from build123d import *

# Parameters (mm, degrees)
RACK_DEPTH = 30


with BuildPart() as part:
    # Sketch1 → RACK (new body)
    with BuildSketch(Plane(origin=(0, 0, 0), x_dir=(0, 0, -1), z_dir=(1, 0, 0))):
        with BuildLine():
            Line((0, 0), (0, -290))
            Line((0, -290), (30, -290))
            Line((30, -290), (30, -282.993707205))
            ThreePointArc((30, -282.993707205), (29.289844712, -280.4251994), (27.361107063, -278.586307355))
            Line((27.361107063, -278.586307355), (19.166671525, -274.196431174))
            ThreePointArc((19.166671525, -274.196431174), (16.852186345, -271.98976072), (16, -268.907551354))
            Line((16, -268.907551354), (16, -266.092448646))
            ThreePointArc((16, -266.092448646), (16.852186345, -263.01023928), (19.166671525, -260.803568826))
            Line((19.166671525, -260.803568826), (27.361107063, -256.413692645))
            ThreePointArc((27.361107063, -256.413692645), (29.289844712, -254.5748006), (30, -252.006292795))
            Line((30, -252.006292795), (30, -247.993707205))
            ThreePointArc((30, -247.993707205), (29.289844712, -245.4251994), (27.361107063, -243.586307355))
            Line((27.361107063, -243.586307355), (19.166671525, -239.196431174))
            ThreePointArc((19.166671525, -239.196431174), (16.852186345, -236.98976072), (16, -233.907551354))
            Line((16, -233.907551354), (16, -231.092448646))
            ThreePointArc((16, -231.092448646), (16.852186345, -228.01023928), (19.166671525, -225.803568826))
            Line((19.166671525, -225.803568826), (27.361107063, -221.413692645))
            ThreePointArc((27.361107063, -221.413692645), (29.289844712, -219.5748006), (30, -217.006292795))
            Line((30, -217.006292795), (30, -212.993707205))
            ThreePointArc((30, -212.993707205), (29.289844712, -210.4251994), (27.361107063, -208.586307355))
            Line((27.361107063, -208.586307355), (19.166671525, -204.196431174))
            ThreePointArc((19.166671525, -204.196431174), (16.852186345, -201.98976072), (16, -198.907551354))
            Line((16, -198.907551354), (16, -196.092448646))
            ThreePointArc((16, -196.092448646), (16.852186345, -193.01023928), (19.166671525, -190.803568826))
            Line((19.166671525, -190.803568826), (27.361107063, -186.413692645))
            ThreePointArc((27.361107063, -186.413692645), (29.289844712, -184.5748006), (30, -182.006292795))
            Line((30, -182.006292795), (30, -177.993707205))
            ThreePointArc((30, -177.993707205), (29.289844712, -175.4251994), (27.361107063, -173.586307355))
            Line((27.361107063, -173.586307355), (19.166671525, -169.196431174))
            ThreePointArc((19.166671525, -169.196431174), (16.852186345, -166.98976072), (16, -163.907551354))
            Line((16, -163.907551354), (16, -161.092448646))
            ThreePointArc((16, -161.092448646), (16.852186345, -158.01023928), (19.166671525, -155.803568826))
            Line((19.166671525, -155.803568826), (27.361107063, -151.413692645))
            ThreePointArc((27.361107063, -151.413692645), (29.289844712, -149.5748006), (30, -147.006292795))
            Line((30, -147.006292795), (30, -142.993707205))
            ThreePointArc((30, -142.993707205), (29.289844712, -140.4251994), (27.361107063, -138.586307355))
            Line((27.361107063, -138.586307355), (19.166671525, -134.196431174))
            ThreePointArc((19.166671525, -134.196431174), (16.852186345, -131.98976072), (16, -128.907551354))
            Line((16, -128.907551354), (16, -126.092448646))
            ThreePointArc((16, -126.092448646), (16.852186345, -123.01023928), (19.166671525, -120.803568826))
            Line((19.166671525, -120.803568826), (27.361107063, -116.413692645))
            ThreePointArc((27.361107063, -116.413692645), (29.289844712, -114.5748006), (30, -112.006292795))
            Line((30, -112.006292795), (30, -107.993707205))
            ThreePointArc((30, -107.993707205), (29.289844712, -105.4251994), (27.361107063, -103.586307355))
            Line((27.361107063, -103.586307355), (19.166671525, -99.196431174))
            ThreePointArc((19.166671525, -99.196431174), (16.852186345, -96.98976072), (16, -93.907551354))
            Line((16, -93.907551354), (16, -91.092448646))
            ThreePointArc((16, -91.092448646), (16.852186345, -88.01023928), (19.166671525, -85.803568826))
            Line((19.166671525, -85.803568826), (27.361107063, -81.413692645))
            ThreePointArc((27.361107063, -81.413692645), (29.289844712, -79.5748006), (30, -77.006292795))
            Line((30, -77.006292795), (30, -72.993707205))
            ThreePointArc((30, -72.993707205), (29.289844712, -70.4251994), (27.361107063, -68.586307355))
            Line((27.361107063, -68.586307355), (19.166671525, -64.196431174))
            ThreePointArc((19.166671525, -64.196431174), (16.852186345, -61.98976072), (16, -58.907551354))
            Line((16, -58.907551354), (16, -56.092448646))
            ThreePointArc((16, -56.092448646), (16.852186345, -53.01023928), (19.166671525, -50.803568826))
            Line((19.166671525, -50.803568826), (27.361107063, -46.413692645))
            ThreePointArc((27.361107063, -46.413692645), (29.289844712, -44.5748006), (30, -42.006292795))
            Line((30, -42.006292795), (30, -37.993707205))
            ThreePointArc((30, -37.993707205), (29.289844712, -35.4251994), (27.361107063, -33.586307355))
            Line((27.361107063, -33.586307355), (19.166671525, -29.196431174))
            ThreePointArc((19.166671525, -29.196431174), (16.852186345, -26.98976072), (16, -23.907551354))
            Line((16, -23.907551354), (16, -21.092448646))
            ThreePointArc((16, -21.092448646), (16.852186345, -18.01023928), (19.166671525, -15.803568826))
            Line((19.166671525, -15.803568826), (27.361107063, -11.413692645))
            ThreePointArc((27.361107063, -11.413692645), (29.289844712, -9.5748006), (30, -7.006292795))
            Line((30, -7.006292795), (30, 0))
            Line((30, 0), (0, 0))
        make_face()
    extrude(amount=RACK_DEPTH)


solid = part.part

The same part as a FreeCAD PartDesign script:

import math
import FreeCAD as App
import Part
import Sketcher
Q = App.Units.Quantity

doc = App.newDocument("Part")
params = doc.addObject("Spreadsheet::Sheet", "Params")
for row, (alias, value) in enumerate([
    ("sketch1_radius", "5 mm"),
    ("sketch1_radius2", "6 mm"),
    ("sketch1_width", "290 mm"),
    ("sketch1_height", "30 mm"),
    ("pad1_length", "30 mm"),
], start=1):
    params.set(f"A{row}", alias)
    params.set(f"B{row}", "=" + value)
    params.setAlias(f"B{row}", alias)

body = doc.addObject("PartDesign::Body", "Body")

# Sketch on YZ plane
sketch1 = body.newObject("Sketcher::SketchObject", "Sketch")
sketch1.AttachmentSupport = (doc.getObject("YZ_Plane"), [""])
sketch1.MapMode = "FlatFace"
sketch1.addGeometry([
    Part.LineSegment(App.Vector(0, 0, 0), App.Vector(-290, 0, 0)),  # 0
    Part.LineSegment(App.Vector(-290, 0, 0), App.Vector(-290, -30, 0)),  # 1
    Part.LineSegment(App.Vector(-290, -30, 0), App.Vector(-282.993707, -30, 0)),  # 2
    Part.ArcOfCircle(Part.Circle(App.Vector(-282.993707, -25, 0), App.Vector(0, 0, 1), 5), math.radians(-90), math.radians(-28.17859)),  # 3
    Part.LineSegment(App.Vector(-278.586307, -27.361107, 0), App.Vector(-274.196431, -19.166672, 0)),  # 4
    Part.ArcOfCircle(Part.Circle(App.Vector(-268.907551, -22, 0), App.Vector(0, 0, 1), 6), math.radians(90), math.radians(151.82141)),  # 5
    Part.LineSegment(App.Vector(-268.907551, -16, 0), App.Vector(-266.092449, -16, 0)),  # 6
    Part.ArcOfCircle(Part.Circle(App.Vector(-266.092449, -22, 0), App.Vector(0, 0, 1), 6), math.radians(28.17859), math.radians(90)),  # 7
    Part.LineSegment(App.Vector(-260.803569, -19.166672, 0), App.Vector(-256.413693, -27.361107, 0)),  # 8
    Part.ArcOfCircle(Part.Circle(App.Vector(-252.006293, -25, 0), App.Vector(0, 0, 1), 5), math.radians(-151.82141), math.radians(-90)),  # 9
    Part.LineSegment(App.Vector(-252.006293, -30, 0), App.Vector(-247.993707, -30, 0)),  # 10
    Part.ArcOfCircle(Part.Circle(App.Vector(-247.993707, -25, 0), App.Vector(0, 0, 1), 5), math.radians(-90), math.radians(-28.17859)),  # 11
    Part.LineSegment(App.Vector(-243.586307, -27.361107, 0), App.Vector(-239.196431, -19.166672, 0)),  # 12
    Part.ArcOfCircle(Part.Circle(App.Vector(-233.907551, -22, 0), App.Vector(0, 0, 1), 6), math.radians(90), math.radians(151.82141)),  # 13
    Part.LineSegment(App.Vector(-233.907551, -16, 0), App.Vector(-231.092449, -16, 0)),  # 14
    Part.ArcOfCircle(Part.Circle(App.Vector(-231.092449, -22, 0), App.Vector(0, 0, 1), 6), math.radians(28.17859), math.radians(90)),  # 15
    Part.LineSegment(App.Vector(-225.803569, -19.166672, 0), App.Vector(-221.413693, -27.361107, 0)),  # 16
    Part.ArcOfCircle(Part.Circle(App.Vector(-217.006293, -25, 0), App.Vector(0, 0, 1), 5), math.radians(-151.82141), math.radians(-90)),  # 17
    Part.LineSegment(App.Vector(-217.006293, -30, 0), App.Vector(-212.993707, -30, 0)),  # 18
    Part.ArcOfCircle(Part.Circle(App.Vector(-212.993707, -25, 0), App.Vector(0, 0, 1), 5), math.radians(-90), math.radians(-28.17859)),  # 19
    Part.LineSegment(App.Vector(-208.586307, -27.361107, 0), App.Vector(-204.196431, -19.166672, 0)),  # 20
    Part.ArcOfCircle(Part.Circle(App.Vector(-198.907551, -22, 0), App.Vector(0, 0, 1), 6), math.radians(90), math.radians(151.82141)),  # 21
    Part.LineSegment(App.Vector(-198.907551, -16, 0), App.Vector(-196.092449, -16, 0)),  # 22
    Part.ArcOfCircle(Part.Circle(App.Vector(-196.092449, -22, 0), App.Vector(0, 0, 1), 6), math.radians(28.17859), math.radians(90)),  # 23
    Part.LineSegment(App.Vector(-190.803569, -19.166672, 0), App.Vector(-186.413693, -27.361107, 0)),  # 24
    Part.ArcOfCircle(Part.Circle(App.Vector(-182.006293, -25, 0), App.Vector(0, 0, 1), 5), math.radians(-151.82141), math.radians(-90)),  # 25
    Part.LineSegment(App.Vector(-182.006293, -30, 0), App.Vector(-177.993707, -30, 0)),  # 26
    Part.ArcOfCircle(Part.Circle(App.Vector(-177.993707, -25, 0), App.Vector(0, 0, 1), 5), math.radians(-90), math.radians(-28.17859)),  # 27
    Part.LineSegment(App.Vector(-173.586307, -27.361107, 0), App.Vector(-169.196431, -19.166672, 0)),  # 28
    Part.ArcOfCircle(Part.Circle(App.Vector(-163.907551, -22, 0), App.Vector(0, 0, 1), 6), math.radians(90), math.radians(151.82141)),  # 29
    Part.LineSegment(App.Vector(-163.907551, -16, 0), App.Vector(-161.092449, -16, 0)),  # 30
    Part.ArcOfCircle(Part.Circle(App.Vector(-161.092449, -22, 0), App.Vector(0, 0, 1), 6), math.radians(28.17859), math.radians(90)),  # 31
    Part.LineSegment(App.Vector(-155.803569, -19.166672, 0), App.Vector(-151.413693, -27.361107, 0)),  # 32
    Part.ArcOfCircle(Part.Circle(App.Vector(-147.006293, -25, 0), App.Vector(0, 0, 1), 5), math.radians(-151.82141), math.radians(-90)),  # 33
    Part.LineSegment(App.Vector(-147.006293, -30, 0), App.Vector(-142.993707, -30, 0)),  # 34
    Part.ArcOfCircle(Part.Circle(App.Vector(-142.993707, -25, 0), App.Vector(0, 0, 1), 5), math.radians(-90), math.radians(-28.17859)),  # 35
    Part.LineSegment(App.Vector(-138.586307, -27.361107, 0), App.Vector(-134.196431, -19.166672, 0)),  # 36
    Part.ArcOfCircle(Part.Circle(App.Vector(-128.907551, -22, 0), App.Vector(0, 0, 1), 6), math.radians(90), math.radians(151.82141)),  # 37
    Part.LineSegment(App.Vector(-128.907551, -16, 0), App.Vector(-126.092449, -16, 0)),  # 38
    Part.ArcOfCircle(Part.Circle(App.Vector(-126.092449, -22, 0), App.Vector(0, 0, 1), 6), math.radians(28.17859), math.radians(90)),  # 39
    Part.LineSegment(App.Vector(-120.803569, -19.166672, 0), App.Vector(-116.413693, -27.361107, 0)),  # 40
    Part.ArcOfCircle(Part.Circle(App.Vector(-112.006293, -25, 0), App.Vector(0, 0, 1), 5), math.radians(-151.82141), math.radians(-90)),  # 41
    Part.LineSegment(App.Vector(-112.006293, -30, 0), App.Vector(-107.993707, -30, 0)),  # 42
    Part.ArcOfCircle(Part.Circle(App.Vector(-107.993707, -25, 0), App.Vector(0, 0, 1), 5), math.radians(-90), math.radians(-28.17859)),  # 43
    Part.LineSegment(App.Vector(-103.586307, -27.361107, 0), App.Vector(-99.196431, -19.166672, 0)),  # 44
    Part.ArcOfCircle(Part.Circle(App.Vector(-93.907551, -22, 0), App.Vector(0, 0, 1), 6), math.radians(90), math.radians(151.82141)),  # 45
    Part.LineSegment(App.Vector(-93.907551, -16, 0), App.Vector(-91.092449, -16, 0)),  # 46
    Part.ArcOfCircle(Part.Circle(App.Vector(-91.092449, -22, 0), App.Vector(0, 0, 1), 6), math.radians(28.17859), math.radians(90)),  # 47
    Part.LineSegment(App.Vector(-85.803569, -19.166672, 0), App.Vector(-81.413693, -27.361107, 0)),  # 48
    Part.ArcOfCircle(Part.Circle(App.Vector(-77.006293, -25, 0), App.Vector(0, 0, 1), 5), math.radians(-151.82141), math.radians(-90)),  # 49
    Part.LineSegment(App.Vector(-77.006293, -30, 0), App.Vector(-72.993707, -30, 0)),  # 50
    Part.ArcOfCircle(Part.Circle(App.Vector(-72.993707, -25, 0), App.Vector(0, 0, 1), 5), math.radians(-90), math.radians(-28.17859)),  # 51
    Part.LineSegment(App.Vector(-68.586307, -27.361107, 0), App.Vector(-64.196431, -19.166672, 0)),  # 52
    Part.ArcOfCircle(Part.Circle(App.Vector(-58.907551, -22, 0), App.Vector(0, 0, 1), 6), math.radians(90), math.radians(151.82141)),  # 53
    Part.LineSegment(App.Vector(-58.907551, -16, 0), App.Vector(-56.092449, -16, 0)),  # 54
    Part.ArcOfCircle(Part.Circle(App.Vector(-56.092449, -22, 0), App.Vector(0, 0, 1), 6), math.radians(28.17859), math.radians(90)),  # 55
    Part.LineSegment(App.Vector(-50.803569, -19.166672, 0), App.Vector(-46.413693, -27.361107, 0)),  # 56
    Part.ArcOfCircle(Part.Circle(App.Vector(-42.006293, -25, 0), App.Vector(0, 0, 1), 5), math.radians(-151.82141), math.radians(-90)),  # 57
    Part.LineSegment(App.Vector(-42.006293, -30, 0), App.Vector(-37.993707, -30, 0)),  # 58
    Part.ArcOfCircle(Part.Circle(App.Vector(-37.993707, -25, 0), App.Vector(0, 0, 1), 5), math.radians(-90), math.radians(-28.17859)),  # 59
    Part.LineSegment(App.Vector(-33.586307, -27.361107, 0), App.Vector(-29.196431, -19.166672, 0)),  # 60
    Part.ArcOfCircle(Part.Circle(App.Vector(-23.907551, -22, 0), App.Vector(0, 0, 1), 6), math.radians(90), math.radians(151.82141)),  # 61
    Part.LineSegment(App.Vector(-23.907551, -16, 0), App.Vector(-21.092449, -16, 0)),  # 62
    Part.ArcOfCircle(Part.Circle(App.Vector(-21.092449, -22, 0), App.Vector(0, 0, 1), 6), math.radians(28.17859), math.radians(90)),  # 63
    Part.LineSegment(App.Vector(-15.803569, -19.166672, 0), App.Vector(-11.413693, -27.361107, 0)),  # 64
    Part.ArcOfCircle(Part.Circle(App.Vector(-7.006293, -25, 0), App.Vector(0, 0, 1), 5), math.radians(-151.82141), math.radians(-90)),  # 65
    Part.LineSegment(App.Vector(-7.006293, -30, 0), App.Vector(0, -30, 0)),  # 66
    Part.LineSegment(App.Vector(0, -30, 0), App.Vector(0, 0, 0)),  # 67
], False)
sketch1.addConstraint([
    Sketcher.Constraint("Coincident", 0, 2, 1, 1),
    Sketcher.Constraint("Coincident", 1, 2, 2, 1),
    Sketcher.Constraint("Tangent", 2, 2, 3, 1),
    Sketcher.Constraint("Tangent", 3, 2, 4, 1),
    Sketcher.Constraint("Tangent", 4, 2, 5, 2),
    Sketcher.Constraint("Tangent", 5, 1, 6, 1),
    Sketcher.Constraint("Tangent", 6, 2, 7, 2),
    Sketcher.Constraint("Tangent", 7, 1, 8, 1),
    Sketcher.Constraint("Tangent", 8, 2, 9, 1),
    Sketcher.Constraint("Tangent", 9, 2, 10, 1),
    Sketcher.Constraint("Tangent", 10, 2, 11, 1),
    Sketcher.Constraint("Tangent", 11, 2, 12, 1),
    Sketcher.Constraint("Tangent", 12, 2, 13, 2),
    Sketcher.Constraint("Tangent", 13, 1, 14, 1),
    Sketcher.Constraint("Tangent", 14, 2, 15, 2),
    Sketcher.Constraint("Tangent", 15, 1, 16, 1),
    Sketcher.Constraint("Tangent", 16, 2, 17, 1),
    Sketcher.Constraint("Tangent", 17, 2, 18, 1),
    Sketcher.Constraint("Tangent", 18, 2, 19, 1),
    Sketcher.Constraint("Tangent", 19, 2, 20, 1),
    Sketcher.Constraint("Tangent", 20, 2, 21, 2),
    Sketcher.Constraint("Tangent", 21, 1, 22, 1),
    Sketcher.Constraint("Tangent", 22, 2, 23, 2),
    Sketcher.Constraint("Tangent", 23, 1, 24, 1),
    Sketcher.Constraint("Tangent", 24, 2, 25, 1),
    Sketcher.Constraint("Tangent", 25, 2, 26, 1),
    Sketcher.Constraint("Tangent", 26, 2, 27, 1),
    Sketcher.Constraint("Tangent", 27, 2, 28, 1),
    Sketcher.Constraint("Tangent", 28, 2, 29, 2),
    Sketcher.Constraint("Tangent", 29, 1, 30, 1),
    Sketcher.Constraint("Tangent", 30, 2, 31, 2),
    Sketcher.Constraint("Tangent", 31, 1, 32, 1),
    Sketcher.Constraint("Tangent", 32, 2, 33, 1),
    Sketcher.Constraint("Tangent", 33, 2, 34, 1),
    Sketcher.Constraint("Tangent", 34, 2, 35, 1),
    Sketcher.Constraint("Tangent", 35, 2, 36, 1),
    Sketcher.Constraint("Tangent", 36, 2, 37, 2),
    Sketcher.Constraint("Tangent", 37, 1, 38, 1),
    Sketcher.Constraint("Tangent", 38, 2, 39, 2),
    Sketcher.Constraint("Tangent", 39, 1, 40, 1),
    Sketcher.Constraint("Tangent", 40, 2, 41, 1),
    Sketcher.Constraint("Tangent", 41, 2, 42, 1),
    Sketcher.Constraint("Tangent", 42, 2, 43, 1),
    Sketcher.Constraint("Tangent", 43, 2, 44, 1),
    Sketcher.Constraint("Tangent", 44, 2, 45, 2),
    Sketcher.Constraint("Tangent", 45, 1, 46, 1),
    Sketcher.Constraint("Tangent", 46, 2, 47, 2),
    Sketcher.Constraint("Tangent", 47, 1, 48, 1),
    Sketcher.Constraint("Tangent", 48, 2, 49, 1),
    Sketcher.Constraint("Tangent", 49, 2, 50, 1),
    Sketcher.Constraint("Tangent", 50, 2, 51, 1),
    Sketcher.Constraint("Tangent", 51, 2, 52, 1),
    Sketcher.Constraint("Tangent", 52, 2, 53, 2),
    Sketcher.Constraint("Tangent", 53, 1, 54, 1),
    Sketcher.Constraint("Tangent", 54, 2, 55, 2),
    Sketcher.Constraint("Tangent", 55, 1, 56, 1),
    Sketcher.Constraint("Tangent", 56, 2, 57, 1),
    Sketcher.Constraint("Tangent", 57, 2, 58, 1),
    Sketcher.Constraint("Tangent", 58, 2, 59, 1),
    Sketcher.Constraint("Tangent", 59, 2, 60, 1),
    Sketcher.Constraint("Tangent", 60, 2, 61, 2),
    Sketcher.Constraint("Tangent", 61, 1, 62, 1),
    Sketcher.Constraint("Tangent", 62, 2, 63, 2),
    Sketcher.Constraint("Tangent", 63, 1, 64, 1),
    Sketcher.Constraint("Tangent", 64, 2, 65, 1),
    Sketcher.Constraint("Tangent", 65, 2, 66, 1),
    Sketcher.Constraint("Coincident", 66, 2, 67, 1),
    Sketcher.Constraint("Coincident", 67, 2, 0, 1),
    Sketcher.Constraint("Horizontal", 0),
    Sketcher.Constraint("Vertical", 1),
    Sketcher.Constraint("Horizontal", 2),
    Sketcher.Constraint("Horizontal", 6),
    Sketcher.Constraint("Horizontal", 10),
    Sketcher.Constraint("Horizontal", 14),
    Sketcher.Constraint("Horizontal", 18),
    Sketcher.Constraint("Horizontal", 22),
    Sketcher.Constraint("Horizontal", 26),
    Sketcher.Constraint("Horizontal", 30),
    Sketcher.Constraint("Horizontal", 34),
    Sketcher.Constraint("Horizontal", 38),
    Sketcher.Constraint("Horizontal", 42),
    Sketcher.Constraint("Horizontal", 46),
    Sketcher.Constraint("Horizontal", 50),
    Sketcher.Constraint("Horizontal", 54),
    Sketcher.Constraint("Horizontal", 58),
    Sketcher.Constraint("Horizontal", 62),
    Sketcher.Constraint("Horizontal", 66),
    Sketcher.Constraint("Vertical", 67),
    Sketcher.Constraint("Coincident", 67, 2, -1, 1),
    Sketcher.Constraint("Equal", 5, 7),
    Sketcher.Constraint("Equal", 3, 9),
    Sketcher.Constraint("Equal", 9, 11),
    Sketcher.Constraint("Equal", 7, 13),
    Sketcher.Constraint("Equal", 13, 15),
    Sketcher.Constraint("Equal", 11, 17),
    Sketcher.Constraint("Equal", 17, 19),
    Sketcher.Constraint("Equal", 15, 21),
    Sketcher.Constraint("Equal", 21, 23),
    Sketcher.Constraint("Equal", 19, 25),
    Sketcher.Constraint("Equal", 25, 27),
    Sketcher.Constraint("Equal", 23, 29),
    Sketcher.Constraint("Equal", 29, 31),
    Sketcher.Constraint("Equal", 27, 33),
    Sketcher.Constraint("Equal", 33, 35),
    Sketcher.Constraint("Equal", 31, 37),
    Sketcher.Constraint("Equal", 37, 39),
    Sketcher.Constraint("Equal", 35, 41),
    Sketcher.Constraint("Equal", 41, 43),
    Sketcher.Constraint("Equal", 39, 45),
    Sketcher.Constraint("Equal", 45, 47),
    Sketcher.Constraint("Equal", 43, 49),
    Sketcher.Constraint("Equal", 49, 51),
    Sketcher.Constraint("Equal", 47, 53),
    Sketcher.Constraint("Equal", 53, 55),
    Sketcher.Constraint("Equal", 51, 57),
    Sketcher.Constraint("Equal", 57, 59),
    Sketcher.Constraint("Equal", 55, 61),
    Sketcher.Constraint("Equal", 61, 63),
    Sketcher.Constraint("Equal", 59, 65),
    Sketcher.Constraint("Parallel", 4, 12),
    Sketcher.Constraint("Parallel", 8, 16),
    Sketcher.Constraint("Parallel", 12, 20),
    Sketcher.Constraint("Parallel", 16, 24),
    Sketcher.Constraint("Parallel", 20, 28),
    Sketcher.Constraint("Parallel", 24, 32),
    Sketcher.Constraint("Parallel", 28, 36),
    Sketcher.Constraint("Parallel", 32, 40),
    Sketcher.Constraint("Parallel", 36, 44),
    Sketcher.Constraint("Parallel", 40, 48),
    Sketcher.Constraint("Parallel", 44, 52),
    Sketcher.Constraint("Parallel", 48, 56),
    Sketcher.Constraint("Parallel", 52, 60),
    Sketcher.Constraint("Parallel", 56, 64),
    Sketcher.Constraint("Horizontal", 3, 3, 9, 3),
    Sketcher.Constraint("Horizontal", 7, 3, 13, 3),
    Sketcher.Constraint("Horizontal", 11, 3, 17, 3),
    Sketcher.Constraint("Horizontal", 15, 3, 21, 3),
    Sketcher.Constraint("Horizontal", 19, 3, 25, 3),
    Sketcher.Constraint("Horizontal", 23, 3, 29, 3),
    Sketcher.Constraint("Horizontal", 27, 3, 33, 3),
    Sketcher.Constraint("Horizontal", 31, 3, 37, 3),
    Sketcher.Constraint("Horizontal", 35, 3, 41, 3),
    Sketcher.Constraint("Horizontal", 39, 3, 45, 3),
    Sketcher.Constraint("Horizontal", 43, 3, 49, 3),
    Sketcher.Constraint("Horizontal", 47, 3, 53, 3),
    Sketcher.Constraint("Horizontal", 51, 3, 57, 3),
    Sketcher.Constraint("Horizontal", 55, 3, 61, 3),
    Sketcher.Constraint("Horizontal", 59, 3, 65, 3),
    Sketcher.Constraint("Horizontal", 4, 2, 7, 1),
    Sketcher.Constraint("Equal", 6, 14),
    Sketcher.Constraint("Equal", 10, 18),
    Sketcher.Constraint("Equal", 14, 22),
    Sketcher.Constraint("Equal", 18, 26),
    Sketcher.Constraint("Equal", 22, 30),
    Sketcher.Constraint("Equal", 26, 34),
    Sketcher.Constraint("Equal", 30, 38),
    Sketcher.Constraint("Equal", 34, 42),
    Sketcher.Constraint("Equal", 38, 46),
    Sketcher.Constraint("Equal", 42, 50),
    Sketcher.Constraint("Equal", 46, 54),
    Sketcher.Constraint("Equal", 50, 58),
    Sketcher.Constraint("Equal", 54, 62),
    Sketcher.Constraint("Equal", 2, 66),
    Sketcher.Constraint("Radius", 3, Q("5 mm")),
    Sketcher.Constraint("Radius", 5, Q("6 mm")),
    Sketcher.Constraint("DistanceX", 0, 2, 0, 1, Q("290 mm")),
    Sketcher.Constraint("DistanceY", 1, 2, 1, 1, Q("30 mm")),
    Sketcher.Constraint("DistanceY", 5, 3, -1, 1, Q("22 mm")),
    Sketcher.Constraint("DistanceX", 2, 1, 2, 2, Q("7.006293 mm")),
    Sketcher.Constraint("DistanceX", 6, 1, 6, 2, Q("2.815103 mm")),
    Sketcher.Constraint("DistanceX", 10, 1, 10, 2, Q("4.012586 mm")),
])
sketch1.setExpression("Constraints[163]", "Params.sketch1_radius")
sketch1.setExpression("Constraints[164]", "Params.sketch1_radius2")
sketch1.setExpression("Constraints[165]", "Params.sketch1_width")
sketch1.setExpression("Constraints[166]", "Params.sketch1_height")
pad1 = body.newObject("PartDesign::Pad", "Pad")
pad1.Profile = sketch1
pad1.setExpression("Length", "Params.pad1_length")

doc.recompute()
